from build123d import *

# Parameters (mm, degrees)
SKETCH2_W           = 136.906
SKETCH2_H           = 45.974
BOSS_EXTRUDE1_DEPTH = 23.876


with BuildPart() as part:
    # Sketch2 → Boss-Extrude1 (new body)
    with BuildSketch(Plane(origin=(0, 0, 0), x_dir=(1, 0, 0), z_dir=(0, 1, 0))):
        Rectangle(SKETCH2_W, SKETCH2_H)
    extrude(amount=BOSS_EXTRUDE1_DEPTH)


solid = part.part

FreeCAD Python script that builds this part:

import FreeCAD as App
import Part
import Sketcher
from FreeCAD import Vector
Q = App.Units.Quantity


def add_polygon(sketch, points):
    """Adds a closed chain of lines whose ends are joined by coincident constraints."""
    first, n = sketch.GeometryCount, len(points)
    for a, b in zip(points, points[1:] + points[:1]):
        sketch.addGeometry(Part.LineSegment(App.Vector(*a, 0), App.Vector(*b, 0)), False)
    for i in range(n):
        sketch.addConstraint(Sketcher.Constraint("Coincident", first + i, 2, first + (i + 1) % n, 1))

doc = App.newDocument("Part")
params = doc.addObject("Spreadsheet::Sheet", "Params")
for row, (alias, value) in enumerate([
    ("sketch1_width", "5.39 in"),
    ("sketch1_height", "1.81 in"),
    ("pad1_length", "0.94 in"),
], start=1):
    params.set(f"A{row}", alias)
    params.set(f"B{row}", "=" + value)
    params.setAlias(f"B{row}", alias)

body = doc.addObject("PartDesign::Body", "Body")

# Sketch on XZ plane
sketch1 = body.newObject("Sketcher::SketchObject", "Sketch")
sketch1.AttachmentSupport = (doc.getObject("XZ_Plane"), [""])
sketch1.MapMode = "FlatFace"
add_polygon(sketch1, [(-68, -23), (-68, 23), (68, 23), (68, -23)])  # lines 0-3
sketch1.addConstraint([
    Sketcher.Constraint("Vertical", 0),
    Sketcher.Constraint("Horizontal", 1),
    Sketcher.Constraint("Vertical", 2),
    Sketcher.Constraint("Horizontal", 3),
    Sketcher.Constraint("Symmetric", 0, 2, 2, 2, -1, 1),
    Sketcher.Constraint("DistanceX", 1, 1, 1, 2, Q("5.39 in")),
    Sketcher.Constraint("DistanceY", 0, 1, 0, 2, Q("1.81 in")),
])
sketch1.setExpression("Constraints[9]", "Params.sketch1_width")
sketch1.setExpression("Constraints[10]", "Params.sketch1_height")
pad1 = body.newObject("PartDesign::Pad", "Pad")
pad1.Profile = sketch1
pad1.setExpression("Length", "Params.pad1_length")
pad1.Reversed = True

doc.recompute()
